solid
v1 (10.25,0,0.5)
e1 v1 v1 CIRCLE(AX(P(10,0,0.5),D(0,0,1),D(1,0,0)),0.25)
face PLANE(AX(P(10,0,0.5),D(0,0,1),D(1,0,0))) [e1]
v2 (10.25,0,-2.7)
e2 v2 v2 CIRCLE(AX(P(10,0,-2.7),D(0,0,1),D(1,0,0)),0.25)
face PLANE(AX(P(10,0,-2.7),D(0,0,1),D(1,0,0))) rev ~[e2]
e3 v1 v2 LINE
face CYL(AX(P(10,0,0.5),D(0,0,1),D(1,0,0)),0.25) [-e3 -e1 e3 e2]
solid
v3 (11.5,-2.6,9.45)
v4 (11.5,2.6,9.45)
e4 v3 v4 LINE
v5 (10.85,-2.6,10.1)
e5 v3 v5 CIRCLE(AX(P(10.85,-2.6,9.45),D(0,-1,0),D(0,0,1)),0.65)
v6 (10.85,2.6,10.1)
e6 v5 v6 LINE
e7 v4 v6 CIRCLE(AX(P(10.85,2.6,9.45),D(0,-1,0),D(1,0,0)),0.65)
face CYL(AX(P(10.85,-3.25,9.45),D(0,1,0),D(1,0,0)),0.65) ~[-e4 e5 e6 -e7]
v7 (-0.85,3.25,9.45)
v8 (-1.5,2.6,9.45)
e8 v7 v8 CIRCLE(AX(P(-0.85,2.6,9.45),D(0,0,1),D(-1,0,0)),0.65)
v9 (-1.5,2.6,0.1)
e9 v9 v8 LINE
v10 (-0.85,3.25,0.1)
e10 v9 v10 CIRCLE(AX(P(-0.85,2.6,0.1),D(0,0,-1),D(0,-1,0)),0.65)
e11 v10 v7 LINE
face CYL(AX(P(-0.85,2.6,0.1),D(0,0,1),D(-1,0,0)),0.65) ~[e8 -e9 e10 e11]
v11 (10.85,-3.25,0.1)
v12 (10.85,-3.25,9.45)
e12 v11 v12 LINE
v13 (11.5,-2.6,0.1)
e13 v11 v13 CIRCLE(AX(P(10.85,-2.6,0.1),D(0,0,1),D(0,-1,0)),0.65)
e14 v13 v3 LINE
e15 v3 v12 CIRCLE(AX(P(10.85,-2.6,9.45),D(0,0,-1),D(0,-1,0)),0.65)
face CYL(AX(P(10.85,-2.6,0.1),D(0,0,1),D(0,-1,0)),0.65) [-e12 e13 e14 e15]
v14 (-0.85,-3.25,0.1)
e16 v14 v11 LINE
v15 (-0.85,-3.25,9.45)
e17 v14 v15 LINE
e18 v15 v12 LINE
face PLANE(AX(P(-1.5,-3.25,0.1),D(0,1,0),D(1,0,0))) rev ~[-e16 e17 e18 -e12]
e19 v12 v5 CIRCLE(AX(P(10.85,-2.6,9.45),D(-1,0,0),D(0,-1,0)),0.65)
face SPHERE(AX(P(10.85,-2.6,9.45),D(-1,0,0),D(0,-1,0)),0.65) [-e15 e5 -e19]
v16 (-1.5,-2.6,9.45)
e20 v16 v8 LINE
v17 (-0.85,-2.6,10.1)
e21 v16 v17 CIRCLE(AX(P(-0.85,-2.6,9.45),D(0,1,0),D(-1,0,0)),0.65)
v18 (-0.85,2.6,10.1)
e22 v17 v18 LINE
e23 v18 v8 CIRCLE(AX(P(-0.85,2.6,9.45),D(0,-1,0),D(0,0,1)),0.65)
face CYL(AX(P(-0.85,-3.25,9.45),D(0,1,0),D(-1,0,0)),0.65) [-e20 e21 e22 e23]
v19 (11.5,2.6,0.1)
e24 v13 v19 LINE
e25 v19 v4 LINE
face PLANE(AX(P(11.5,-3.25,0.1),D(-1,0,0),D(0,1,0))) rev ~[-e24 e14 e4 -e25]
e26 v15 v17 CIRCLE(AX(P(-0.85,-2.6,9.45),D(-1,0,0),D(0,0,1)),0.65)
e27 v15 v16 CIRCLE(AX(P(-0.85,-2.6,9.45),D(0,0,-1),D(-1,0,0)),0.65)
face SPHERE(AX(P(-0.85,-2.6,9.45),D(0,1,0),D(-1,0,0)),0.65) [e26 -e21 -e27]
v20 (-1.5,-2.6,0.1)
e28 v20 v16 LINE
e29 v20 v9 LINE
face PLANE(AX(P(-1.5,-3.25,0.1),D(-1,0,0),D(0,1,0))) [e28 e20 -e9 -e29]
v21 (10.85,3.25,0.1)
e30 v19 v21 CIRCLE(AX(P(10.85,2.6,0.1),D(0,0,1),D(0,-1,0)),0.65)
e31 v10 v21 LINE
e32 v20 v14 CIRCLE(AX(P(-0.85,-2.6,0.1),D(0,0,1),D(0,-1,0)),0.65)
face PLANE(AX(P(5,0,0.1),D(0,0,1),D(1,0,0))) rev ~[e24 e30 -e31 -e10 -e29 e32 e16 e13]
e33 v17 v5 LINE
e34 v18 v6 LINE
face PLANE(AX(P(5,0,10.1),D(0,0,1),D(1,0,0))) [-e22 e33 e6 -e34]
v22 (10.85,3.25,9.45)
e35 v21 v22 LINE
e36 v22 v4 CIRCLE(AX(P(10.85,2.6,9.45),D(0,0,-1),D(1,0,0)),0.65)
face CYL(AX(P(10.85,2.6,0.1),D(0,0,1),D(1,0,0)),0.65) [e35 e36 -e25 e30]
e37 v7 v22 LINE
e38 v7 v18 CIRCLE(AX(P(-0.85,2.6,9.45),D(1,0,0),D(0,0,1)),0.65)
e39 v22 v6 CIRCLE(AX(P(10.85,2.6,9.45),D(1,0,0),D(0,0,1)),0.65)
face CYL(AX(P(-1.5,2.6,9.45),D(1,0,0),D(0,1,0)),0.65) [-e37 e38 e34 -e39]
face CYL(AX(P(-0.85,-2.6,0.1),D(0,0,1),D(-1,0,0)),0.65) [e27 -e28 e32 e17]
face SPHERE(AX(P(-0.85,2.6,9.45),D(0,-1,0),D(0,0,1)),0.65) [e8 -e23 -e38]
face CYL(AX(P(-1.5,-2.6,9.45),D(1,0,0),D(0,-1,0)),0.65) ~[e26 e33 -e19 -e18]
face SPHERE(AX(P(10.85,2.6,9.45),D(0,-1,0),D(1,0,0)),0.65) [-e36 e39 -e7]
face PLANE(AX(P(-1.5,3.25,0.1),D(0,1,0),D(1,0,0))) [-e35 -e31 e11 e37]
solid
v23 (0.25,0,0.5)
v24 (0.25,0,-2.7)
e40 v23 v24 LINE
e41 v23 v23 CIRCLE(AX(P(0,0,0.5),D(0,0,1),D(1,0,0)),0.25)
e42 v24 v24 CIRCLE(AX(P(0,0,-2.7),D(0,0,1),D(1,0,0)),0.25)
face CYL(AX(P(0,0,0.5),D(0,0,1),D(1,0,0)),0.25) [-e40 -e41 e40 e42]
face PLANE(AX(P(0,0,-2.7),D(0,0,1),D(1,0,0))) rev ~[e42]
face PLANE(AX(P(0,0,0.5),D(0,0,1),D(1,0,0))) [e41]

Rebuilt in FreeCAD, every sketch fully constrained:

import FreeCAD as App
import Part
import Sketcher
from FreeCAD import Vector
Q = App.Units.Quantity


def edges_at(feature, points):
    """Names of the edges that pass closest to the given points."""
    edges = feature.Shape.Edges
    near = lambda p: min(range(len(edges)), key=lambda i: edges[i].distToShape(Part.Vertex(*p))[0])
    return sorted({f"Edge{near(p) + 1}" for p in points})


def add_polygon(sketch, points):
    """Adds a closed chain of lines whose ends are joined by coincident constraints."""
    first, n = sketch.GeometryCount, len(points)
    for a, b in zip(points, points[1:] + points[:1]):
        sketch.addGeometry(Part.LineSegment(App.Vector(*a, 0), App.Vector(*b, 0)), False)
    for i in range(n):
        sketch.addConstraint(Sketcher.Constraint("Coincident", first + i, 2, first + (i + 1) % n, 1))

doc = App.newDocument("Part")
body = doc.addObject("PartDesign::Body", "Body")

# Sketch on XY plane
sketch1 = body.newObject("Sketcher::SketchObject", "Sketch")
sketch1.AttachmentSupport = (doc.getObject("XY_Plane"), [""])
sketch1.MapMode = "FlatFace"
sketch1.AttachmentOffset = App.Placement(Vector(0, 0, 0.1), App.Rotation())
add_polygon(sketch1, [(-2, 3), (-2, -3), (12, -3), (12, 3)])  # lines 0-3
sketch1.addConstraint(Sketcher.Constraint("Vertical", 0))
sketch1.addConstraint(Sketcher.Constraint("Horizontal", 1))
sketch1.addConstraint(Sketcher.Constraint("Vertical", 2))
sketch1.addConstraint(Sketcher.Constraint("Horizontal", 3))
sketch1.addConstraint(Sketcher.Constraint("DistanceX", 1, 1, 1, 2, Q("13 mm")))
sketch1.addConstraint(Sketcher.Constraint("DistanceY", 0, 2, 0, 1, Q("6.5 mm")))
sketch1.addConstraint(Sketcher.Constraint("DistanceX", 0, 2, -1, 1, Q("1.5 mm")))
sketch1.addConstraint(Sketcher.Constraint("DistanceY", 0, 2, -1, 1, Q("3.25 mm")))
pad1 = body.newObject("PartDesign::Pad", "Pad")
pad1.Profile = sketch1
pad1.Length = 10
doc.recompute()

fillet = body.newObject("PartDesign::Fillet", "Fillet")
fillet.Base = (pad1, edges_at(pad1, [
    (-1.5, 0, 10.1),
    (-1.5, -3.25, 5.1),
    (5, -3.25, 10.1),
    (11.5, -3.25, 5.1),
    (11.5, 0, 10.1),
    (11.5, 3.25, 5.1),
    (5, 3.25, 10.1),
    (-1.5, 3.25, 5.1),
]))
fillet.Radius = 0.65
body2 = doc.addObject("PartDesign::Body", "Body001")
body2.AllowCompound = True

# Sketch on XY plane
sketch2 = body2.newObject("Sketcher::SketchObject", "Sketch001")
sketch2.AttachmentSupport = (doc.getObject("XY_Plane001"), [""])
sketch2.MapMode = "FlatFace"
sketch2.AttachmentOffset = App.Placement(Vector(0, 0, 0.5), App.Rotation())
sketch2.addGeometry(Part.Circle(Vector(0, 0, 0), Vector(0, 0, 1), 0.25), False)
sketch2.addGeometry(Part.Circle(Vector(10, 0, 0), Vector(0, 0, 1), 0.25), False)
sketch2.addConstraint(Sketcher.Constraint("Coincident", 0, 3, -1, 1))
sketch2.addConstraint(Sketcher.Constraint("Equal", 0, 1))
sketch2.addConstraint(Sketcher.Constraint("PointOnObject", 1, 3, -1))
sketch2.addConstraint(Sketcher.Constraint("Diameter", 0, Q("0.5 mm")))
sketch2.addConstraint(Sketcher.Constraint("DistanceX", -1, 1, 1, 3, Q("10 mm")))
pad2 = body2.newObject("PartDesign::Pad", "Pad001")
pad2.Profile = sketch2
pad2.Length = 3.2
pad2.Reversed = True

doc.recompute()
